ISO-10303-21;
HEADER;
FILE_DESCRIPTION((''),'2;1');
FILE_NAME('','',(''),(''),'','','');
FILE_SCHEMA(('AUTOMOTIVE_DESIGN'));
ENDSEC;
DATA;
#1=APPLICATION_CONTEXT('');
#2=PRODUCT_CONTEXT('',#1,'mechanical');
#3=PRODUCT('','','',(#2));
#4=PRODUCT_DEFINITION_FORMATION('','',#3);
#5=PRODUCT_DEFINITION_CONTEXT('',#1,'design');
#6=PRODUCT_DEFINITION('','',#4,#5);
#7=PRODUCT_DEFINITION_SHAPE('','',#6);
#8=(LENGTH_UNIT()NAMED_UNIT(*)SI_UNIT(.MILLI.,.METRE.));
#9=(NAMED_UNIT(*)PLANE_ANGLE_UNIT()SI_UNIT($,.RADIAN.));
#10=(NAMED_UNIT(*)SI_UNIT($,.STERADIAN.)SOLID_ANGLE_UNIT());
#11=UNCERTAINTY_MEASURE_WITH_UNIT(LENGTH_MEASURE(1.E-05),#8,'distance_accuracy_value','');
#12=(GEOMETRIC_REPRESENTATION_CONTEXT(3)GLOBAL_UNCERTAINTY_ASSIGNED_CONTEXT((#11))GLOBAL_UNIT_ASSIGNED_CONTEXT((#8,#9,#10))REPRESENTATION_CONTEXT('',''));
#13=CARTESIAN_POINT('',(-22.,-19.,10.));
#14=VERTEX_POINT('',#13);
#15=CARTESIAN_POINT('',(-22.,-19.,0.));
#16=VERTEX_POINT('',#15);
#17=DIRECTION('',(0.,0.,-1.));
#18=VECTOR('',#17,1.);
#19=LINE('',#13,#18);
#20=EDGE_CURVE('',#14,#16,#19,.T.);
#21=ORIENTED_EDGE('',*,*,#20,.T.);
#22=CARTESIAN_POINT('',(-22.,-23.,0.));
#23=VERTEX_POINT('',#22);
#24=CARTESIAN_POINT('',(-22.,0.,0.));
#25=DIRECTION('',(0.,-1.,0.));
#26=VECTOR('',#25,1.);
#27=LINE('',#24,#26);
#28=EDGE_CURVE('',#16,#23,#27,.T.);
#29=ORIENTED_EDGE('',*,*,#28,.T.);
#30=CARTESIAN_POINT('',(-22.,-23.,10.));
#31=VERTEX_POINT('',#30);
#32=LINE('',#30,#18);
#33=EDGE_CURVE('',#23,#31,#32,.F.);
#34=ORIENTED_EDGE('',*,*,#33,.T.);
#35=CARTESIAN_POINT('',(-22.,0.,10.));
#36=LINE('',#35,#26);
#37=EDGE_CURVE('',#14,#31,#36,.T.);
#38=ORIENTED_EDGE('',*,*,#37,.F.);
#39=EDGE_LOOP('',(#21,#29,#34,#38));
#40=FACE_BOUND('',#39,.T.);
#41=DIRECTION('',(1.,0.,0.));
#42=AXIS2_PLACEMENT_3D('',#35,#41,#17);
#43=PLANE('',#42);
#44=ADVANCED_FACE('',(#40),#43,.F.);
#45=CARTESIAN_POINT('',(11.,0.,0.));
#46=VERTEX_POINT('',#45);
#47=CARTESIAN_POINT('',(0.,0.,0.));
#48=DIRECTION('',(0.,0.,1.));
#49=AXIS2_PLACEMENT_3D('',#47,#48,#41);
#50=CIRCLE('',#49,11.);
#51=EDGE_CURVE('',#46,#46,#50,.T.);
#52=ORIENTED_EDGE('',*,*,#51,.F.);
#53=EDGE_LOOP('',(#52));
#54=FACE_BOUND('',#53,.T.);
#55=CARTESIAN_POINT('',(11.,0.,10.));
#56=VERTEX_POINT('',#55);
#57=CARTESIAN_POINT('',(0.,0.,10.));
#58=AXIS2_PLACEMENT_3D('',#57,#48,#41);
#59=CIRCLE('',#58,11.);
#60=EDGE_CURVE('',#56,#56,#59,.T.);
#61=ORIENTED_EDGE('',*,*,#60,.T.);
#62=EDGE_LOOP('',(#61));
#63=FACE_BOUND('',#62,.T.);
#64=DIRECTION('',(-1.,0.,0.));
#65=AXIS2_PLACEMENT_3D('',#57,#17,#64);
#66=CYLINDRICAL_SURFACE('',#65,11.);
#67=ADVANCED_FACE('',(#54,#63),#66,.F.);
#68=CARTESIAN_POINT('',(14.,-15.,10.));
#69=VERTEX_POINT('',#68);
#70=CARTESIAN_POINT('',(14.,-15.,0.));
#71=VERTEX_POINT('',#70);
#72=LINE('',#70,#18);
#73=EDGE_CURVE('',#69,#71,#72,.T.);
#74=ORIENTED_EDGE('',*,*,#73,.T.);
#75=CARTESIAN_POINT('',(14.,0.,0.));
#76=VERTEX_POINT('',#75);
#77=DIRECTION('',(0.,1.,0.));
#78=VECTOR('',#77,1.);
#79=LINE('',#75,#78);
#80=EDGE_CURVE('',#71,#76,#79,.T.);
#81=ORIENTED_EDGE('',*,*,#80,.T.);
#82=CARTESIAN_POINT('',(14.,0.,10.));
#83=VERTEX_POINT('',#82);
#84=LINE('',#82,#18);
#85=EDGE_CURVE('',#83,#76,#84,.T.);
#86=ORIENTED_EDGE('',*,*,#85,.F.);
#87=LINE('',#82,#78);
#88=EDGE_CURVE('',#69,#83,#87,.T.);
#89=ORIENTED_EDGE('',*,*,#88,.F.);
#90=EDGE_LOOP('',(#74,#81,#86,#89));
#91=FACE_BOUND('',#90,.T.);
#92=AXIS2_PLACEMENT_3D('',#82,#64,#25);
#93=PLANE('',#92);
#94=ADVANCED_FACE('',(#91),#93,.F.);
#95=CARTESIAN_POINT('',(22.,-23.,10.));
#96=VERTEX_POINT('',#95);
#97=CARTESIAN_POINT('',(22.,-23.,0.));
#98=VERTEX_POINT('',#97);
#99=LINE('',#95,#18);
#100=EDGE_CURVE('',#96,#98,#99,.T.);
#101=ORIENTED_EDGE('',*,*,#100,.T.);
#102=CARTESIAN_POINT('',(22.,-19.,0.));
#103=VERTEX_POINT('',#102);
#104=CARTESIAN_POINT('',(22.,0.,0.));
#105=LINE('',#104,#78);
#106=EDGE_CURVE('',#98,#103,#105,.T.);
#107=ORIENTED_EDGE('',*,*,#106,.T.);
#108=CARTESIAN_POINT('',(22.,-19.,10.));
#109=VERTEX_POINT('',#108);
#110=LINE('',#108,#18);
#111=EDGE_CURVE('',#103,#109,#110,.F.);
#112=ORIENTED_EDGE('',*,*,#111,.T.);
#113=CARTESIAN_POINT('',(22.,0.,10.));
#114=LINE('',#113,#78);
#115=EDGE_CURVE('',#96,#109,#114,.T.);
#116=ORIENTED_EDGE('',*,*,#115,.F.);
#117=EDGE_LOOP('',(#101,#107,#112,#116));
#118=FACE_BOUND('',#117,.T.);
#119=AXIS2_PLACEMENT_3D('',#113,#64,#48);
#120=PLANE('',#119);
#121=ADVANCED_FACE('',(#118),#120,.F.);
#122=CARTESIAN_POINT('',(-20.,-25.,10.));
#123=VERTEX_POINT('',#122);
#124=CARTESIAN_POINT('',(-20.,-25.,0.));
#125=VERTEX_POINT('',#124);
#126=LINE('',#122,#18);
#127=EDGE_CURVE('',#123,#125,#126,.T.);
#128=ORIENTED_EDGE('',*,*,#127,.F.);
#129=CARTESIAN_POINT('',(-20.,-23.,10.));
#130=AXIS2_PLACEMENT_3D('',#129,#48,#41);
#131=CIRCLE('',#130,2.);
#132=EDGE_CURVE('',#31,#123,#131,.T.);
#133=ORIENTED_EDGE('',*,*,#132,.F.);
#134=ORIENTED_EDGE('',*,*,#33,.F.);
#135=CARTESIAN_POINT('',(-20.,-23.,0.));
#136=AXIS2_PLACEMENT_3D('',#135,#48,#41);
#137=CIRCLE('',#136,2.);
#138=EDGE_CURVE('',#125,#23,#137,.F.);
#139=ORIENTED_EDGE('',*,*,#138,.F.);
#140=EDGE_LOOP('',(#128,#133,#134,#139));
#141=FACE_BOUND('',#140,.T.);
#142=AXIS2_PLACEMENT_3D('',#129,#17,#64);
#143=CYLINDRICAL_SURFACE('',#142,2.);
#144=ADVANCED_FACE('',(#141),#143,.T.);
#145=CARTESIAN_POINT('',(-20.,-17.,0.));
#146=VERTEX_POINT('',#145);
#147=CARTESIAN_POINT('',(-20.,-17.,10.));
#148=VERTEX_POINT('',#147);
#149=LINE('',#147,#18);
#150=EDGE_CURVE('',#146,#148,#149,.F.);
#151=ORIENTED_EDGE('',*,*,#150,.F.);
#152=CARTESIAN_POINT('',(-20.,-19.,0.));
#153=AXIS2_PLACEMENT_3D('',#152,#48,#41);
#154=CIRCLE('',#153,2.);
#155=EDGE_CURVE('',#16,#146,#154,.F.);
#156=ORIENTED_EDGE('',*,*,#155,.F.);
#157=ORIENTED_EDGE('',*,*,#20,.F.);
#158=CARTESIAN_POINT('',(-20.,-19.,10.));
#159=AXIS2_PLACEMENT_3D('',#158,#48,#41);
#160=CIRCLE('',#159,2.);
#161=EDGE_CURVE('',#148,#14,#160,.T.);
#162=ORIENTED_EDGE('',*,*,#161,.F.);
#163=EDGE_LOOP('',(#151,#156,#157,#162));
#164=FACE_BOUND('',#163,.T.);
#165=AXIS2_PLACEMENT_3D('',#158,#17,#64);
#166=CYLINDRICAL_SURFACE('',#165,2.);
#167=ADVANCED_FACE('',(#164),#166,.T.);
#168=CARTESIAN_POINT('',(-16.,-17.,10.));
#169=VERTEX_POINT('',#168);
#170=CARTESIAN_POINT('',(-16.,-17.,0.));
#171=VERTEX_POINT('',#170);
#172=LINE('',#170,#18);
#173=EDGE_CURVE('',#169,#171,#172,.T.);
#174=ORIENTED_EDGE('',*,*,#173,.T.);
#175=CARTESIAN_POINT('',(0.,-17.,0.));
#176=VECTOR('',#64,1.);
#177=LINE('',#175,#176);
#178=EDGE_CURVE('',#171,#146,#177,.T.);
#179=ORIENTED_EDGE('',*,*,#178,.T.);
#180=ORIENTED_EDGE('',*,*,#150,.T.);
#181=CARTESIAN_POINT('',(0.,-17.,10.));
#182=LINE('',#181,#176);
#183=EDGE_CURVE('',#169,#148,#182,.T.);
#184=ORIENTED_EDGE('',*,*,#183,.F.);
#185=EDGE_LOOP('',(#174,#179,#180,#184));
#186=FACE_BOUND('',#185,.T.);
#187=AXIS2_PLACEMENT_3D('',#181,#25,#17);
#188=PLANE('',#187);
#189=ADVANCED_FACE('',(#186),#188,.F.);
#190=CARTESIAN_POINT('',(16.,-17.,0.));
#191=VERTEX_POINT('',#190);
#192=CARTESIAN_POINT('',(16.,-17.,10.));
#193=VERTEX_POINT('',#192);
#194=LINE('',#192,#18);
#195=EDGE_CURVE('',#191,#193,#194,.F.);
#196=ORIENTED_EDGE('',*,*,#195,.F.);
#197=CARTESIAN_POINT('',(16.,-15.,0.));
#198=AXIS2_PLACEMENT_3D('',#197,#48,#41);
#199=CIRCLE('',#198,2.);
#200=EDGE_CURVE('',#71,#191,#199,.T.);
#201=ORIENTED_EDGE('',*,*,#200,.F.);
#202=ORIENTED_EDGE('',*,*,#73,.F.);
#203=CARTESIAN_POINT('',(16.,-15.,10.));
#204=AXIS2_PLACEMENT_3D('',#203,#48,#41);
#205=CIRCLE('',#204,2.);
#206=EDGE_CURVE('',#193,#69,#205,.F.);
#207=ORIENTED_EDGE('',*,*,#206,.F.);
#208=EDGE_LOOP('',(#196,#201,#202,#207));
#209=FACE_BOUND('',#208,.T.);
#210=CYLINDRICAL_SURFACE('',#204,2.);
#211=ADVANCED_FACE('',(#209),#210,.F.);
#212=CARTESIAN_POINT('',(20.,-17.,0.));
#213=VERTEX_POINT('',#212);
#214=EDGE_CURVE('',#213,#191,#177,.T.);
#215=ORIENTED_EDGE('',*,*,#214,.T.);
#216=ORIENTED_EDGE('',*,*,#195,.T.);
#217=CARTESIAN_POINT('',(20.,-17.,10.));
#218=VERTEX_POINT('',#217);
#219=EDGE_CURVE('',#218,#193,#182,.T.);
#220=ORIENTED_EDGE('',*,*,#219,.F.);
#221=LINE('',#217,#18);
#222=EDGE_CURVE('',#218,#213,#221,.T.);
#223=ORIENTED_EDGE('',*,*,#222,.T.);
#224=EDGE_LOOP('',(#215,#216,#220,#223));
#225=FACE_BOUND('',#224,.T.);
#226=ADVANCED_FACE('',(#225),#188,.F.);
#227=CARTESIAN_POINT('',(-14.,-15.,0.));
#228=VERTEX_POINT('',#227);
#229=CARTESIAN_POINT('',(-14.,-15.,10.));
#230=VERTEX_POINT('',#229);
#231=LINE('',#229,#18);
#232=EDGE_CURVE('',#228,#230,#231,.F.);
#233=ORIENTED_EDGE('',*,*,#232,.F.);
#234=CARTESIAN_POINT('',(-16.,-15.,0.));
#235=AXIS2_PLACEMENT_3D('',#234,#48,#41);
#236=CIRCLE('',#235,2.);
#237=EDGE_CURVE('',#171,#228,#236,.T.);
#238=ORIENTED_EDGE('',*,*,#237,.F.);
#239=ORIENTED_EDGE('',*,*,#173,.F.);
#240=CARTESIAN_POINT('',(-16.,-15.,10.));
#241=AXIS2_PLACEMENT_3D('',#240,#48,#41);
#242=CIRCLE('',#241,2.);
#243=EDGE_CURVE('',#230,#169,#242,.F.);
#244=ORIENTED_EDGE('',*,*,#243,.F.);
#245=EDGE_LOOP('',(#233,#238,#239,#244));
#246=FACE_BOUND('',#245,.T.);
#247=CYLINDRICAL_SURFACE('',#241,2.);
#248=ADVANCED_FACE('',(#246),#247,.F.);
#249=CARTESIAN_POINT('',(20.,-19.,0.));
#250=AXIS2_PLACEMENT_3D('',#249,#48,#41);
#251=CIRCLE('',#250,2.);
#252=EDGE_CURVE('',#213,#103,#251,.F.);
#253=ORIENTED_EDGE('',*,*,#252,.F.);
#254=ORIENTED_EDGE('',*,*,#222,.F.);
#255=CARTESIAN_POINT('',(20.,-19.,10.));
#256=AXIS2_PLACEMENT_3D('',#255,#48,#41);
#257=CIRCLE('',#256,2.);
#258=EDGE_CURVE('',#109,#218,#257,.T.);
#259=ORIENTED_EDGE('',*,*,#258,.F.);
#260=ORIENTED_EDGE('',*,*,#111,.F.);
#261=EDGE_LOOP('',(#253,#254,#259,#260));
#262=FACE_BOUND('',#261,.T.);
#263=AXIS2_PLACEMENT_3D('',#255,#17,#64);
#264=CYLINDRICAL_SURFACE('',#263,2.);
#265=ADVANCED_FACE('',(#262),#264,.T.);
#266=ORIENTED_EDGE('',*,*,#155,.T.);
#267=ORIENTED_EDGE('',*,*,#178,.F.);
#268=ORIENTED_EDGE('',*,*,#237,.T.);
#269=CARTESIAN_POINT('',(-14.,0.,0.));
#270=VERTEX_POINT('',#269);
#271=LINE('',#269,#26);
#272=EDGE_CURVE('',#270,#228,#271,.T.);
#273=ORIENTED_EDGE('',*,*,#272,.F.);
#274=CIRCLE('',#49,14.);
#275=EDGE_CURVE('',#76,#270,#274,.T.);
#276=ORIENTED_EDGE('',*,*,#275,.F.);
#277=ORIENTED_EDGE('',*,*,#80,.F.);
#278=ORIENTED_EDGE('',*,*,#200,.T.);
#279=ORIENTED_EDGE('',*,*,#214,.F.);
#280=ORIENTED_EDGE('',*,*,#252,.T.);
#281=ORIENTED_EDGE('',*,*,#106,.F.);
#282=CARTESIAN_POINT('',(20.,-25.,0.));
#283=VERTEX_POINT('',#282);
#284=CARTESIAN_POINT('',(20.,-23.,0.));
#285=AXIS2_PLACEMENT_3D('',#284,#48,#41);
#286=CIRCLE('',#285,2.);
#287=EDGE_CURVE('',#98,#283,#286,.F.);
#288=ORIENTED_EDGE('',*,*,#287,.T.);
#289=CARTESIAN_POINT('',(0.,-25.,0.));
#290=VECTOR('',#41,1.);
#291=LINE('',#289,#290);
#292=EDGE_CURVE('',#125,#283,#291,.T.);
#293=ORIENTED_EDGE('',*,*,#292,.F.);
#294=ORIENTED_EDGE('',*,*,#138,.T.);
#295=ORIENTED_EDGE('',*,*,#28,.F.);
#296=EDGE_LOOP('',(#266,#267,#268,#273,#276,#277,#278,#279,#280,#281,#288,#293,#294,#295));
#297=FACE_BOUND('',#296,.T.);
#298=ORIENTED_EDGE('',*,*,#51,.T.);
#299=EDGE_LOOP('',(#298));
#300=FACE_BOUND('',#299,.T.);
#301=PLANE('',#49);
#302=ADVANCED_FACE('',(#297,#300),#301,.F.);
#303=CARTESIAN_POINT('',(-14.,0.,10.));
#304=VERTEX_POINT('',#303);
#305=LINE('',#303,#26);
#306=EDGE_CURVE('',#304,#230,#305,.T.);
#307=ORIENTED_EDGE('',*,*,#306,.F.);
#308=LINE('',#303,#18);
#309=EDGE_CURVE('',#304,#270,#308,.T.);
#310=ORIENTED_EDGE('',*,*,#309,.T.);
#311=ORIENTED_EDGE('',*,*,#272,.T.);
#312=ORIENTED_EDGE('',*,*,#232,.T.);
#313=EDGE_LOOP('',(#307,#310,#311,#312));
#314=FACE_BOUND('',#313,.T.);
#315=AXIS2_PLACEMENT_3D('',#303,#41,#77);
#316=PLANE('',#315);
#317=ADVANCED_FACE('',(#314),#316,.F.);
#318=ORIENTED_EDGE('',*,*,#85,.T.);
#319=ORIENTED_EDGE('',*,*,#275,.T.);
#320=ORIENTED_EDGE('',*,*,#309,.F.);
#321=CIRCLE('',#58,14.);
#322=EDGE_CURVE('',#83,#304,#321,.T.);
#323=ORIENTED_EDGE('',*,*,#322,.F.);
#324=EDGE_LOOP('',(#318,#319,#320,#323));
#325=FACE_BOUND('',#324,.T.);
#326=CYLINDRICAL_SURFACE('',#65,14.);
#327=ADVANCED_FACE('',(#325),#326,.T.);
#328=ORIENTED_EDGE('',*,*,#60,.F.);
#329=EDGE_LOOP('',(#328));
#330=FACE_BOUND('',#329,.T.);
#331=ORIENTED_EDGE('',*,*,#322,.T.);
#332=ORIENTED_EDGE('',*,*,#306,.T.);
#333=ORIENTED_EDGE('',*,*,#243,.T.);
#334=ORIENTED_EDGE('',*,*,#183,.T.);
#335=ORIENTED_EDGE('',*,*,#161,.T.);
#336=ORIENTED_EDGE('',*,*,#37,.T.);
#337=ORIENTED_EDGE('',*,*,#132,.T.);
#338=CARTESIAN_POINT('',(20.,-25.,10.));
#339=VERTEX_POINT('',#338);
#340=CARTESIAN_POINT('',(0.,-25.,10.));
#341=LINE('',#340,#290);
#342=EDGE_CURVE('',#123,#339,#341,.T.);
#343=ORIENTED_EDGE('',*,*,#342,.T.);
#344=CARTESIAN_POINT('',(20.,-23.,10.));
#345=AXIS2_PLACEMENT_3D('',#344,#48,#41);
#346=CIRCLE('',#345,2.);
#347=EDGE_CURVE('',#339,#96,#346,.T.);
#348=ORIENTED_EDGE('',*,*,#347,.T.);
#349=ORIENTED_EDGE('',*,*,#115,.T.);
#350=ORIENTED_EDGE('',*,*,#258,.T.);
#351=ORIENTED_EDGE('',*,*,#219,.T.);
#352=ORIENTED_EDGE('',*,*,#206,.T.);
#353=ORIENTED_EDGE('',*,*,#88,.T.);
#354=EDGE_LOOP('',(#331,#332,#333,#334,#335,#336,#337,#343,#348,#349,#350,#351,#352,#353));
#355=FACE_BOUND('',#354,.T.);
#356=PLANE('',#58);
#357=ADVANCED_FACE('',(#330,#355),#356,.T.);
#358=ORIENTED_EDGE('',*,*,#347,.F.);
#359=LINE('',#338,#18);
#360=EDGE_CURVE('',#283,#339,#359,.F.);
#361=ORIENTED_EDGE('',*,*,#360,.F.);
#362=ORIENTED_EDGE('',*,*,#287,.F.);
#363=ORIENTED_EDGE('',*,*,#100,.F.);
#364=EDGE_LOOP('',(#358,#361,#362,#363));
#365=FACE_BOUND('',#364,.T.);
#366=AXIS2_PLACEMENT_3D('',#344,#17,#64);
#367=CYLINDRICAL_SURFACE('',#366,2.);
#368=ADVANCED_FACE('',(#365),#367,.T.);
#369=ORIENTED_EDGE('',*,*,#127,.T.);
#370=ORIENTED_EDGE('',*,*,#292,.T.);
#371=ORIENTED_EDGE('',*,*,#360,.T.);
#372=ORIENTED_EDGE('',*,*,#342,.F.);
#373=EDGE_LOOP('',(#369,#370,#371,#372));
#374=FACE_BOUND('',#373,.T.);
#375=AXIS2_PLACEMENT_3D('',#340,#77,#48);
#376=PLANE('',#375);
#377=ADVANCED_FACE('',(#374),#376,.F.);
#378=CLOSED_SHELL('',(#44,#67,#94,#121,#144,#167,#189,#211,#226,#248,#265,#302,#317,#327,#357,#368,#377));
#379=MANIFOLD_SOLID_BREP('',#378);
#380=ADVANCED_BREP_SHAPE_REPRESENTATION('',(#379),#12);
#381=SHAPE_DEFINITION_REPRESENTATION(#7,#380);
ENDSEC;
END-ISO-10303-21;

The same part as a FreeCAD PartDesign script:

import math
import FreeCAD as App
import Part
import Sketcher

V = App.Vector
Q = App.Units.Quantity


def edges_at(feature, points):
    """Names of the edges that pass closest to the given points."""
    edges = feature.Shape.Edges
    near = lambda p: min(range(len(edges)), key=lambda i: edges[i].distToShape(Part.Vertex(*p))[0])
    return sorted({f"Edge{near(p) + 1}" for p in points})

doc = App.newDocument("Part")
body = doc.addObject("PartDesign::Body", "Body")

# Sketch on XY plane
sketch1 = doc.addObject("Sketcher::SketchObject", "Sketch")
body.addObject(sketch1)
sketch1.AttachmentSupport = (doc.XY_Plane, [""])
sketch1.MapMode = "FlatFace"
sketch1.addGeometry(Part.LineSegment(V(-14, 0, 0), V(-14, -17, 0)), False)
sketch1.addGeometry(Part.LineSegment(V(-14, -17, 0), V(-22, -17, 0)), False)
sketch1.addGeometry(Part.LineSegment(V(-22, -17, 0), V(-22, -25, 0)), False)
sketch1.addGeometry(Part.LineSegment(V(-22, -25, 0), V(22, -25, 0)), False)
sketch1.addGeometry(Part.LineSegment(V(22, -25, 0), V(22, -17, 0)), False)
sketch1.addGeometry(Part.LineSegment(V(22, -17, 0), V(14, -17, 0)), False)
sketch1.addGeometry(Part.LineSegment(V(14, -17, 0), V(14, 0, 0)), False)
sketch1.addGeometry(Part.ArcOfCircle(Part.Circle(V(0, 0, 0), V(0, 0, 1), 14), math.radians(0), math.radians(180)), False)
sketch1.addGeometry(Part.Circle(V(0, 0, 0), V(0, 0, 1), 11), False)
sketch1.addConstraint(Sketcher.Constraint("Coincident", 0, 2, 1, 1))
sketch1.addConstraint(Sketcher.Constraint("Coincident", 1, 2, 2, 1))
sketch1.addConstraint(Sketcher.Constraint("Coincident", 2, 2, 3, 1))
sketch1.addConstraint(Sketcher.Constraint("Coincident", 3, 2, 4, 1))
sketch1.addConstraint(Sketcher.Constraint("Coincident", 4, 2, 5, 1))
sketch1.addConstraint(Sketcher.Constraint("Coincident", 5, 2, 6, 1))
sketch1.addConstraint(Sketcher.Constraint("Tangent", 6, 2, 7, 1))
sketch1.addConstraint(Sketcher.Constraint("Tangent", 7, 2, 0, 1))
sketch1.addConstraint(Sketcher.Constraint("Vertical", 0))
sketch1.addConstraint(Sketcher.Constraint("Horizontal", 1))
sketch1.addConstraint(Sketcher.Constraint("Vertical", 2))
sketch1.addConstraint(Sketcher.Constraint("Horizontal", 3))
sketch1.addConstraint(Sketcher.Constraint("Vertical", 4))
sketch1.addConstraint(Sketcher.Constraint("Horizontal", 5))
sketch1.addConstraint(Sketcher.Constraint("Vertical", 6))
sketch1.addConstraint(Sketcher.Constraint("Coincident", 7, 3, -1, 1))
sketch1.addConstraint(Sketcher.Constraint("Coincident", 8, 3, -1, 1))
sketch1.addConstraint(Sketcher.Constraint("Symmetric", 1, 2, 4, 2, -2))
sketch1.addConstraint(Sketcher.Constraint("Equal", 5, 2))
sketch1.addConstraint(Sketcher.Constraint("Diameter", 8, Q("22 mm")))
sketch1.addConstraint(Sketcher.Constraint("Radius", 7, Q("14 mm")))
sketch1.addConstraint(Sketcher.Constraint("DistanceX", 1, 2, 1, 1, Q("8 mm")))
sketch1.addConstraint(Sketcher.Constraint("DistanceY", 0, 2, 0, 1, Q("17 mm")))
pad1 = doc.addObject("PartDesign::Pad", "Pad")
body.addObject(pad1)
pad1.Profile = sketch1
pad1.Length = 10
doc.recompute()

fillet = doc.addObject("PartDesign::Fillet", "Fillet")
body.addObject(fillet)
fillet.Base = (pad1, edges_at(pad1, [
    (14, -17, 5),
    (22, -17, 5),
    (22, -25, 5),
    (-22, -25, 5),
    (-22, -17, 5),
    (-14, -17, 5),
]))
fillet.Radius = 2

doc.recompute()
